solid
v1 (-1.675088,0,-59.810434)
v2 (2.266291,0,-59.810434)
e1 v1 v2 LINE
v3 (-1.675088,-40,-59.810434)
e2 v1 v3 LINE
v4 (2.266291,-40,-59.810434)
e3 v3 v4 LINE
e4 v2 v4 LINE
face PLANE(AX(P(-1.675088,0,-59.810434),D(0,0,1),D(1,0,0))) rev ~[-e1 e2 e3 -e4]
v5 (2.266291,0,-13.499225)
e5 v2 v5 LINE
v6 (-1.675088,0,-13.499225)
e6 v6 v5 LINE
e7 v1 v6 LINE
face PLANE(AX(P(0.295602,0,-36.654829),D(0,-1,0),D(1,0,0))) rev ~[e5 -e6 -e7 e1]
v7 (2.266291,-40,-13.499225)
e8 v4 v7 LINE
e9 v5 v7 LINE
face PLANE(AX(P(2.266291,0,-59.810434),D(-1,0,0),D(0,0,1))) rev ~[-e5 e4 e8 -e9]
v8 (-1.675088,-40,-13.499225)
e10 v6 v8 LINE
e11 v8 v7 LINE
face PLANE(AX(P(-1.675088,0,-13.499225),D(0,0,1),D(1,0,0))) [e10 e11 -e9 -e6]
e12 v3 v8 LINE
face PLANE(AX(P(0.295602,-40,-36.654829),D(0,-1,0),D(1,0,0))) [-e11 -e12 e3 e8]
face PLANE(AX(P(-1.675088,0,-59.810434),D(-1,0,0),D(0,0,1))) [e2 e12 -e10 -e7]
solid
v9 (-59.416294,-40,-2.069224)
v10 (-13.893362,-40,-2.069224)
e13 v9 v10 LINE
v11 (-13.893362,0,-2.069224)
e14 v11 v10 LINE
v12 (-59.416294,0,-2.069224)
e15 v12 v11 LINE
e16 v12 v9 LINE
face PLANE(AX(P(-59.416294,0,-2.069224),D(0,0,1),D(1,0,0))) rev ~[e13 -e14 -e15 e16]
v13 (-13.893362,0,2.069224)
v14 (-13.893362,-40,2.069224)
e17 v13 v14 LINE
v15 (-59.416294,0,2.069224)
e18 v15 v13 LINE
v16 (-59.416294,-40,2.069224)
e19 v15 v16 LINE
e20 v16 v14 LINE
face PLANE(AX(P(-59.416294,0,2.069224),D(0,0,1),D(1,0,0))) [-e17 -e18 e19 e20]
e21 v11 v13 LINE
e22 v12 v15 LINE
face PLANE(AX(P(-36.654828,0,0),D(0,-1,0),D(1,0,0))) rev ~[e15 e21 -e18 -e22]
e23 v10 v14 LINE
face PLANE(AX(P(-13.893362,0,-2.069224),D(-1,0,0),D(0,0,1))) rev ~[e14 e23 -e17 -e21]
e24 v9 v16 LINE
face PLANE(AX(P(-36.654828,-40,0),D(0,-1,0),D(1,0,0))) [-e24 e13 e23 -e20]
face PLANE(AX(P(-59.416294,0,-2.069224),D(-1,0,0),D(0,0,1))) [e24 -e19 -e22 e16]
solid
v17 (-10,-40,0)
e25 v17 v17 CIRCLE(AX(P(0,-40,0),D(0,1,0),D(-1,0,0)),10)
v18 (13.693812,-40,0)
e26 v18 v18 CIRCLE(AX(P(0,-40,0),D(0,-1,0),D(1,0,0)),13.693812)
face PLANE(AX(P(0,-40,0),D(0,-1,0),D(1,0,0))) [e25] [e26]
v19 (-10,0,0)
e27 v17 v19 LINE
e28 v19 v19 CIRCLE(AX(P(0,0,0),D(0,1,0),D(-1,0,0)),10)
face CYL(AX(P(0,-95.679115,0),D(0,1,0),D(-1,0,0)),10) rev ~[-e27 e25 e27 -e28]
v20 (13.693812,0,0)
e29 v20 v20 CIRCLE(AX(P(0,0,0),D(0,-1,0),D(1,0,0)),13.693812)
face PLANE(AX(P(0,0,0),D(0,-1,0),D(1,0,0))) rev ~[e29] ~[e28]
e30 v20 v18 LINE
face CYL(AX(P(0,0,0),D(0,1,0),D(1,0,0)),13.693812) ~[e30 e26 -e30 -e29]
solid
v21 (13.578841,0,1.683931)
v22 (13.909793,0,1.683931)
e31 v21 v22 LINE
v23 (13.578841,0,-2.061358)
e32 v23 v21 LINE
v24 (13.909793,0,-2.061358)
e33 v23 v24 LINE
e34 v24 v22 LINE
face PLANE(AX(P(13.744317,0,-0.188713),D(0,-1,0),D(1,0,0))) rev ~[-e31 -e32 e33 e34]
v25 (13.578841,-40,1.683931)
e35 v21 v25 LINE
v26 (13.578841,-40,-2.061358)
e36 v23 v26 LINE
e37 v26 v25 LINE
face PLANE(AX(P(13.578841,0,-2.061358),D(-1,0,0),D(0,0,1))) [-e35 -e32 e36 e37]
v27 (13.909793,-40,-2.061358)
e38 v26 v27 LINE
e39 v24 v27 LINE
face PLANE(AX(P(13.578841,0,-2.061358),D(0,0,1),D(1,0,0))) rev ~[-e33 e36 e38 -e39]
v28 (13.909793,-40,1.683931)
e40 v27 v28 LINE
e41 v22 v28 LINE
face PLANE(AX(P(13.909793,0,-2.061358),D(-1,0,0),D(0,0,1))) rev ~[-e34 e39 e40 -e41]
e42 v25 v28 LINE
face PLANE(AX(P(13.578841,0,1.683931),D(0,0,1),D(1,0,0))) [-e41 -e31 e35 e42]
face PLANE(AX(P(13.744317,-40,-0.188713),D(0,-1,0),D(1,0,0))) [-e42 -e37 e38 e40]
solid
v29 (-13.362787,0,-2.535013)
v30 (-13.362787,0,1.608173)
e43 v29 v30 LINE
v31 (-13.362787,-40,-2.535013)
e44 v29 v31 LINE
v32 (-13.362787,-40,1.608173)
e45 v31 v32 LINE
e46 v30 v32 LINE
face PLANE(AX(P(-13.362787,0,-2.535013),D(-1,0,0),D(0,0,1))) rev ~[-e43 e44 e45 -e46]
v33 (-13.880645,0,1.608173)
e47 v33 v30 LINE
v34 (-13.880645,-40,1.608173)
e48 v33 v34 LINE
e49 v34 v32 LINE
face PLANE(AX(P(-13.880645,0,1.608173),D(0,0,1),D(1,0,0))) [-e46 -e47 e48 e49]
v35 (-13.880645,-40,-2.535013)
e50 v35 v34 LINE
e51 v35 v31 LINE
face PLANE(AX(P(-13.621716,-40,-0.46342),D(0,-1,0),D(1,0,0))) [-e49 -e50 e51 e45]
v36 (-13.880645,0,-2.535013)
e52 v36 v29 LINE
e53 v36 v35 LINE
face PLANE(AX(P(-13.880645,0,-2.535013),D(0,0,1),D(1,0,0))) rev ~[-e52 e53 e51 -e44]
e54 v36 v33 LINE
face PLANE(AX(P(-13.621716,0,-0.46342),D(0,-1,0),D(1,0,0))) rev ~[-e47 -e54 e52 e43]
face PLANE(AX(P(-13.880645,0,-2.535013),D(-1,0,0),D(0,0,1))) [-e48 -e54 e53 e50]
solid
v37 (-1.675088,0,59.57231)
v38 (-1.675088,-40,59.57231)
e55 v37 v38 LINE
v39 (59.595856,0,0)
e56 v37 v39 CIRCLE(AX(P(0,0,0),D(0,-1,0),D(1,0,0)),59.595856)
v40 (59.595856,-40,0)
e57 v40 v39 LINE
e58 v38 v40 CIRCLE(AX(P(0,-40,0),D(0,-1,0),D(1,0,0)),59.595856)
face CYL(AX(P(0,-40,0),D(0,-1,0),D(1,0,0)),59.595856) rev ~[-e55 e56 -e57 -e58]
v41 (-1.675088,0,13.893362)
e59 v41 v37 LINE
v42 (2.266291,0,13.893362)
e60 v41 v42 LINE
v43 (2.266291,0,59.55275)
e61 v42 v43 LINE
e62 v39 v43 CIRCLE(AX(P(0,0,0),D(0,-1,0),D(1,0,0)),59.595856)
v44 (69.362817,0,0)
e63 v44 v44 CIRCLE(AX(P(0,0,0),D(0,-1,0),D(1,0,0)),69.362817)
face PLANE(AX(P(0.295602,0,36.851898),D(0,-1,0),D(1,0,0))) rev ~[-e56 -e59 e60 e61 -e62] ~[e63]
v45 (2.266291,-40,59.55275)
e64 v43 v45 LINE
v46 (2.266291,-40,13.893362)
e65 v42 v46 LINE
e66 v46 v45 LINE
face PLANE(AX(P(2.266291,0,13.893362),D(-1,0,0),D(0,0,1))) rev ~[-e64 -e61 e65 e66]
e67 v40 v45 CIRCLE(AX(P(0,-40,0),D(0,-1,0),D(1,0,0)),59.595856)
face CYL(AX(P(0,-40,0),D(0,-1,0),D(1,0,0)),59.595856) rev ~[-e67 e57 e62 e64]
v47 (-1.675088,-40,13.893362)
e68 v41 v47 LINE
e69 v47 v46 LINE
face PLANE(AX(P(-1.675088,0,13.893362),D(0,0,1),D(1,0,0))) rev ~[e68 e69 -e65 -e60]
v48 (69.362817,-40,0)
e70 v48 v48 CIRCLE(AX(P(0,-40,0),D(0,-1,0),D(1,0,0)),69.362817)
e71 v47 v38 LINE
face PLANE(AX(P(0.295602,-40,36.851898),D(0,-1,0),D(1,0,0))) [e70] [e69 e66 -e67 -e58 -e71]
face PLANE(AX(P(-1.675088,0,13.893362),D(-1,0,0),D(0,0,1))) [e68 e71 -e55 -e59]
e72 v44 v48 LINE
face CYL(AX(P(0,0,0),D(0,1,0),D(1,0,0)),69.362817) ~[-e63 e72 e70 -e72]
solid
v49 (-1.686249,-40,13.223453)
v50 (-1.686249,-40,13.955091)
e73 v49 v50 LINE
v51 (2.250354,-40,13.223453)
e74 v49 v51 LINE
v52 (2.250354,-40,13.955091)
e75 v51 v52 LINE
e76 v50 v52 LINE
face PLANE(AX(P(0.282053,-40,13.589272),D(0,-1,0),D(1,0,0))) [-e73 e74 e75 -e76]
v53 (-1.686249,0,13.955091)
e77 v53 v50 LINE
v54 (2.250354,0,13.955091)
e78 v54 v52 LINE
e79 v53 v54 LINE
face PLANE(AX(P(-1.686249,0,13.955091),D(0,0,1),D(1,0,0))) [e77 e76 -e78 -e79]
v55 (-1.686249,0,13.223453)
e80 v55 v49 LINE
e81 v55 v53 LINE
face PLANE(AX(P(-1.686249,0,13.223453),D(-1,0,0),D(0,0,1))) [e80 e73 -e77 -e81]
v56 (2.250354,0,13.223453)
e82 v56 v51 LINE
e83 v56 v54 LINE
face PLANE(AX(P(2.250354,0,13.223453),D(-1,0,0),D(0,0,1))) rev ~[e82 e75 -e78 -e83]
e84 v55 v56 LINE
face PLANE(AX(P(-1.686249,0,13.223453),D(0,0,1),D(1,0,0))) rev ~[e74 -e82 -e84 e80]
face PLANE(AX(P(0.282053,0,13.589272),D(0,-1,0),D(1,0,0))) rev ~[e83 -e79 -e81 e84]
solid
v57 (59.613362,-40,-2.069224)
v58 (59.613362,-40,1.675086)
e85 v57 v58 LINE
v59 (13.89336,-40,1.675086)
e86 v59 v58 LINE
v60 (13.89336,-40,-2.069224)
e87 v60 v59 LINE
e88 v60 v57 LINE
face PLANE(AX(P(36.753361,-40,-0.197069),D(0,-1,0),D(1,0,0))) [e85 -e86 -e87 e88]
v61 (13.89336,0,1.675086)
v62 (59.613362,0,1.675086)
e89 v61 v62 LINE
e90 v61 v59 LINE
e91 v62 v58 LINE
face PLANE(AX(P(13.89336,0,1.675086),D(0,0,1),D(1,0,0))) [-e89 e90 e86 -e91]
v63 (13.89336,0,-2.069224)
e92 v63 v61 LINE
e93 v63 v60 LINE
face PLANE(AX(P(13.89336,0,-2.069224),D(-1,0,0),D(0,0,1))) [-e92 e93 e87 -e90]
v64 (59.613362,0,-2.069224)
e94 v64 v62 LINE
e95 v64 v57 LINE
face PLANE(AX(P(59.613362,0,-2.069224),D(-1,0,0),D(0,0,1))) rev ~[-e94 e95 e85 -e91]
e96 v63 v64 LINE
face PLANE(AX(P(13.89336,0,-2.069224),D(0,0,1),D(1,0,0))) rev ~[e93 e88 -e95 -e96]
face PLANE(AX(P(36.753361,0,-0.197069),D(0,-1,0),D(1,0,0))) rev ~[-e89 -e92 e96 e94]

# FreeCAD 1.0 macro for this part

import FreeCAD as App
import Part
import Sketcher
from FreeCAD import Vector
Q = App.Units.Quantity


def add_polygon(sketch, points):
    """Adds a closed chain of lines whose ends are joined by coincident constraints."""
    first, n = sketch.GeometryCount, len(points)
    for a, b in zip(points, points[1:] + points[:1]):
        sketch.addGeometry(Part.LineSegment(App.Vector(*a, 0), App.Vector(*b, 0)), False)
    for i in range(n):
        sketch.addConstraint(Sketcher.Constraint("Coincident", first + i, 2, first + (i + 1) % n, 1))

doc = App.newDocument("Part")
body = doc.addObject("PartDesign::Body", "Body")

# Sketch on XZ plane
sketch1 = doc.addObject("Sketcher::SketchObject", "Sketch")
body.addObject(sketch1)
sketch1.AttachmentSupport = (doc.XZ_Plane, [""])
sketch1.MapMode = "FlatFace"
sketch1.addGeometry(Part.Circle(Vector(0, 0, 0), Vector(0, 0, 1), 69), False)
sketch1.addConstraint([
    Sketcher.Constraint("Coincident", 0, 3, -1, 1),
    Sketcher.Constraint("Diameter", 0, Q("138.725634 mm")),
])
pad1 = doc.addObject("PartDesign::Pad", "Pad")
body.addObject(pad1)
pad1.Profile = sketch1
pad1.Length = 40

# Sketch on XZ plane
sketch2 = doc.addObject("Sketcher::SketchObject", "Sketch001")
body.addObject(sketch2)
sketch2.AttachmentSupport = (doc.XZ_Plane, [""])
sketch2.MapMode = "FlatFace"
sketch2.AttachmentOffset = App.Placement(Vector(0, 0, 40), App.Rotation())
sketch2.addGeometry(Part.Circle(Vector(0, 0, 0), Vector(0, 0, 1), 60), False)
sketch2.addConstraint([
    Sketcher.Constraint("Coincident", 0, 3, -1, 1),
    Sketcher.Constraint("Diameter", 0, Q("119.191712 mm")),
])
pocket1 = doc.addObject("PartDesign::Pocket", "Pocket")
body.addObject(pocket1)
pocket1.Profile = sketch2
pocket1.Length = 40

# Sketch on XZ plane
sketch3 = doc.addObject("Sketcher::SketchObject", "Sketch002")
body.addObject(sketch3)
sketch3.AttachmentSupport = (doc.XZ_Plane, [""])
sketch3.MapMode = "FlatFace"
add_polygon(sketch3, [(-1.7, 59.8), (-1.7, 13.9), (2.3, 13.9), (2.3, 59.8)])  # lines 0-3
sketch3.addConstraint([
    Sketcher.Constraint("Vertical", 0),
    Sketcher.Constraint("Horizontal", 1),
    Sketcher.Constraint("Vertical", 2),
    Sketcher.Constraint("Horizontal", 3),
    Sketcher.Constraint("DistanceX", 1, 1, 1, 2, Q("3.941379 mm")),
    Sketcher.Constraint("DistanceY", 0, 2, 0, 1, Q("45.917072 mm")),
    Sketcher.Constraint("DistanceX", -1, 1, 1, 2, Q("2.266291 mm")),
    Sketcher.Constraint("DistanceY", -1, 1, 0, 2, Q("13.893362 mm")),
])
pad2 = doc.addObject("PartDesign::Pad", "Pad001")
body.addObject(pad2)
pad2.Profile = sketch3
pad2.Length = 40
body2 = doc.addObject("PartDesign::Body", "Body001")

# Sketch on XZ plane
sketch4 = doc.addObject("Sketcher::SketchObject", "Sketch003")
body2.addObject(sketch4)
sketch4.AttachmentSupport = (doc.getObject("XZ_Plane001"), [""])
sketch4.MapMode = "FlatFace"
sketch4.addGeometry(Part.Circle(Vector(0, 0, 0), Vector(0, 0, 1), 14), False)
sketch4.addConstraint([
    Sketcher.Constraint("Coincident", 0, 3, -1, 1),
    Sketcher.Constraint("Diameter", 0, Q("27.387624 mm")),
])
pad3 = doc.addObject("PartDesign::Pad", "Pad002")
body2.addObject(pad3)
pad3.Profile = sketch4
pad3.Length = 40

# Sketch on XZ plane
sketch5 = doc.addObject("Sketcher::SketchObject", "Sketch004")
body2.addObject(sketch5)
sketch5.AttachmentSupport = (doc.getObject("XZ_Plane001"), [""])
sketch5.MapMode = "FlatFace"
sketch5.AttachmentOffset = App.Placement(Vector(0, 0, 40), App.Rotation())
sketch5.addGeometry(Part.Circle(Vector(0, 0, 0), Vector(0, 0, 1), 10), False)
sketch5.addConstraint([
    Sketcher.Constraint("Coincident", 0, 3, -1, 1),
    Sketcher.Constraint("Diameter", 0, Q("20 mm")),
])
doc.recompute()
hole = doc.addObject("PartDesign::Hole", "Hole")
body2.addObject(hole)
hole.Profile = sketch5
hole.ThreadType = "None"
hole.Diameter = 20
hole.DepthType = "ThroughAll"
body3 = doc.addObject("PartDesign::Body", "Body002")
body3.AllowCompound = True

# Sketch on XZ plane
sketch6 = doc.addObject("Sketcher::SketchObject", "Sketch005")
body3.addObject(sketch6)
sketch6.AttachmentSupport = (doc.getObject("XZ_Plane002"), [""])
sketch6.MapMode = "FlatFace"
add_polygon(sketch6, [(-59.4, 2.1), (-59.4, -2.1), (-13.9, -2.1), (-13.9, 2.1)])  # lines 0-3
add_polygon(sketch6, [(13.9, 1.7), (13.9, -2.1), (59.6, -2.1), (59.6, 1.7)])  # lines 4-7
add_polygon(sketch6, [(-1.7, -13.5), (-1.7, -59.8), (2.3, -59.8), (2.3, -13.5)])  # lines 8-11
sketch6.addConstraint([
    Sketcher.Constraint("Vertical", 0),
    Sketcher.Constraint("Horizontal", 1),
    Sketcher.Constraint("Vertical", 2),
    Sketcher.Constraint("Horizontal", 3),
    Sketcher.Constraint("Vertical", 4),
    Sketcher.Constraint("Horizontal", 5),
    Sketcher.Constraint("Vertical", 6),
    Sketcher.Constraint("Horizontal", 7),
    Sketcher.Constraint("Vertical", 8),
    Sketcher.Constraint("Horizontal", 9),
    Sketcher.Constraint("Vertical", 10),
    Sketcher.Constraint("Horizontal", 11),
    Sketcher.Constraint("Symmetric", 2, 2, 4, 2, -1, 1),
    Sketcher.Constraint("Horizontal", 1, 2, 4, 2),
    Sketcher.Constraint("DistanceY", 10, 2, 4, 2, Q("11.430001 mm")),
    Sketcher.Constraint("DistanceX", 1, 1, 1, 2, Q("45.522932 mm")),
    Sketcher.Constraint("DistanceX", 9, 1, 9, 2, Q("3.941379 mm")),
    Sketcher.Constraint("DistanceY", 0, 2, 0, 1, Q("4.138448 mm")),
    Sketcher.Constraint("DistanceY", 4, 2, 4, 1, Q("3.74431 mm")),
    Sketcher.Constraint("DistanceY", 8, 2, 8, 1, Q("46.311209 mm")),
    Sketcher.Constraint("DistanceX", 5, 1, 5, 2, Q("45.720002 mm")),
    Sketcher.Constraint("DistanceX", -1, 1, 4, 2, Q("13.89336 mm")),
    Sketcher.Constraint("DistanceX", -1, 1, 9, 2, Q("2.266291 mm")),
])
pad4 = doc.addObject("PartDesign::Pad", "Pad003")
body3.addObject(pad4)
pad4.Profile = sketch6
pad4.Length = 40
body4 = doc.addObject("PartDesign::Body", "Body003")
body4.AllowCompound = True

# Sketch on XZ plane
sketch7 = doc.addObject("Sketcher::SketchObject", "Sketch006")
body4.addObject(sketch7)
sketch7.AttachmentSupport = (doc.getObject("XZ_Plane003"), [""])
sketch7.MapMode = "FlatFace"
add_polygon(sketch7, [(13.58, 1.68), (13.58, -2.06), (13.91, -2.06), (13.91, 1.68)])  # lines 0-3
add_polygon(sketch7, [(-1.69, 13.96), (-1.69, 13.22), (2.25, 13.22), (2.25, 13.96)])  # lines 4-7
add_polygon(sketch7, [(-13.88, 1.61), (-13.88, -2.54), (-13.36, -2.54), (-13.36, 1.61)])  # lines 8-11
sketch7.addConstraint([
    Sketcher.Constraint("Vertical", 0),
    Sketcher.Constraint("Horizontal", 1),
    Sketcher.Constraint("Vertical", 2),
    Sketcher.Constraint("Horizontal", 3),
    Sketcher.Constraint("Vertical", 4),
    Sketcher.Constraint("Horizontal", 5),
    Sketcher.Constraint("Vertical", 6),
    Sketcher.Constraint("Horizontal", 7),
    Sketcher.Constraint("Vertical", 8),
    Sketcher.Constraint("Horizontal", 9),
    Sketcher.Constraint("Vertical", 10),
    Sketcher.Constraint("Horizontal", 11),
    Sketcher.Constraint("DistanceX", 8, 2, 5, 2, Q("16.130999 mm")),
    Sketcher.Constraint("DistanceY", 0, 2, 0, 1, Q("3.745289 mm")),
    Sketcher.Constraint("DistanceY", 4, 2, 4, 1, Q("0.731638 mm")),
    Sketcher.Constraint("DistanceX", 1, 1, 1, 2, Q("0.330953 mm")),
    Sketcher.Constraint("DistanceX", 5, 1, 5, 2, Q("3.936603 mm")),
    Sketcher.Constraint("DistanceX", 9, 1, 9, 2, Q("0.517858 mm")),
    Sketcher.Constraint("DistanceY", 8, 2, 8, 1, Q("4.143185 mm")),
    Sketcher.Constraint("DistanceX", -1, 1, 0, 2, Q("13.578841 mm")),
    Sketcher.Constraint("DistanceY", -1, 1, 2, 2, Q("1.683931 mm")),
    Sketcher.Constraint("DistanceX", 4, 2, -1, 1, Q("1.686249 mm")),
    Sketcher.Constraint("DistanceY", -1, 1, 6, 2, Q("13.955091 mm")),
    Sketcher.Constraint("DistanceY", 10, 2, 4, 2, Q("11.61528 mm")),
])
pad5 = doc.addObject("PartDesign::Pad", "Pad004")
body4.addObject(pad5)
pad5.Profile = sketch7
pad5.Length = 40

doc.recompute()
